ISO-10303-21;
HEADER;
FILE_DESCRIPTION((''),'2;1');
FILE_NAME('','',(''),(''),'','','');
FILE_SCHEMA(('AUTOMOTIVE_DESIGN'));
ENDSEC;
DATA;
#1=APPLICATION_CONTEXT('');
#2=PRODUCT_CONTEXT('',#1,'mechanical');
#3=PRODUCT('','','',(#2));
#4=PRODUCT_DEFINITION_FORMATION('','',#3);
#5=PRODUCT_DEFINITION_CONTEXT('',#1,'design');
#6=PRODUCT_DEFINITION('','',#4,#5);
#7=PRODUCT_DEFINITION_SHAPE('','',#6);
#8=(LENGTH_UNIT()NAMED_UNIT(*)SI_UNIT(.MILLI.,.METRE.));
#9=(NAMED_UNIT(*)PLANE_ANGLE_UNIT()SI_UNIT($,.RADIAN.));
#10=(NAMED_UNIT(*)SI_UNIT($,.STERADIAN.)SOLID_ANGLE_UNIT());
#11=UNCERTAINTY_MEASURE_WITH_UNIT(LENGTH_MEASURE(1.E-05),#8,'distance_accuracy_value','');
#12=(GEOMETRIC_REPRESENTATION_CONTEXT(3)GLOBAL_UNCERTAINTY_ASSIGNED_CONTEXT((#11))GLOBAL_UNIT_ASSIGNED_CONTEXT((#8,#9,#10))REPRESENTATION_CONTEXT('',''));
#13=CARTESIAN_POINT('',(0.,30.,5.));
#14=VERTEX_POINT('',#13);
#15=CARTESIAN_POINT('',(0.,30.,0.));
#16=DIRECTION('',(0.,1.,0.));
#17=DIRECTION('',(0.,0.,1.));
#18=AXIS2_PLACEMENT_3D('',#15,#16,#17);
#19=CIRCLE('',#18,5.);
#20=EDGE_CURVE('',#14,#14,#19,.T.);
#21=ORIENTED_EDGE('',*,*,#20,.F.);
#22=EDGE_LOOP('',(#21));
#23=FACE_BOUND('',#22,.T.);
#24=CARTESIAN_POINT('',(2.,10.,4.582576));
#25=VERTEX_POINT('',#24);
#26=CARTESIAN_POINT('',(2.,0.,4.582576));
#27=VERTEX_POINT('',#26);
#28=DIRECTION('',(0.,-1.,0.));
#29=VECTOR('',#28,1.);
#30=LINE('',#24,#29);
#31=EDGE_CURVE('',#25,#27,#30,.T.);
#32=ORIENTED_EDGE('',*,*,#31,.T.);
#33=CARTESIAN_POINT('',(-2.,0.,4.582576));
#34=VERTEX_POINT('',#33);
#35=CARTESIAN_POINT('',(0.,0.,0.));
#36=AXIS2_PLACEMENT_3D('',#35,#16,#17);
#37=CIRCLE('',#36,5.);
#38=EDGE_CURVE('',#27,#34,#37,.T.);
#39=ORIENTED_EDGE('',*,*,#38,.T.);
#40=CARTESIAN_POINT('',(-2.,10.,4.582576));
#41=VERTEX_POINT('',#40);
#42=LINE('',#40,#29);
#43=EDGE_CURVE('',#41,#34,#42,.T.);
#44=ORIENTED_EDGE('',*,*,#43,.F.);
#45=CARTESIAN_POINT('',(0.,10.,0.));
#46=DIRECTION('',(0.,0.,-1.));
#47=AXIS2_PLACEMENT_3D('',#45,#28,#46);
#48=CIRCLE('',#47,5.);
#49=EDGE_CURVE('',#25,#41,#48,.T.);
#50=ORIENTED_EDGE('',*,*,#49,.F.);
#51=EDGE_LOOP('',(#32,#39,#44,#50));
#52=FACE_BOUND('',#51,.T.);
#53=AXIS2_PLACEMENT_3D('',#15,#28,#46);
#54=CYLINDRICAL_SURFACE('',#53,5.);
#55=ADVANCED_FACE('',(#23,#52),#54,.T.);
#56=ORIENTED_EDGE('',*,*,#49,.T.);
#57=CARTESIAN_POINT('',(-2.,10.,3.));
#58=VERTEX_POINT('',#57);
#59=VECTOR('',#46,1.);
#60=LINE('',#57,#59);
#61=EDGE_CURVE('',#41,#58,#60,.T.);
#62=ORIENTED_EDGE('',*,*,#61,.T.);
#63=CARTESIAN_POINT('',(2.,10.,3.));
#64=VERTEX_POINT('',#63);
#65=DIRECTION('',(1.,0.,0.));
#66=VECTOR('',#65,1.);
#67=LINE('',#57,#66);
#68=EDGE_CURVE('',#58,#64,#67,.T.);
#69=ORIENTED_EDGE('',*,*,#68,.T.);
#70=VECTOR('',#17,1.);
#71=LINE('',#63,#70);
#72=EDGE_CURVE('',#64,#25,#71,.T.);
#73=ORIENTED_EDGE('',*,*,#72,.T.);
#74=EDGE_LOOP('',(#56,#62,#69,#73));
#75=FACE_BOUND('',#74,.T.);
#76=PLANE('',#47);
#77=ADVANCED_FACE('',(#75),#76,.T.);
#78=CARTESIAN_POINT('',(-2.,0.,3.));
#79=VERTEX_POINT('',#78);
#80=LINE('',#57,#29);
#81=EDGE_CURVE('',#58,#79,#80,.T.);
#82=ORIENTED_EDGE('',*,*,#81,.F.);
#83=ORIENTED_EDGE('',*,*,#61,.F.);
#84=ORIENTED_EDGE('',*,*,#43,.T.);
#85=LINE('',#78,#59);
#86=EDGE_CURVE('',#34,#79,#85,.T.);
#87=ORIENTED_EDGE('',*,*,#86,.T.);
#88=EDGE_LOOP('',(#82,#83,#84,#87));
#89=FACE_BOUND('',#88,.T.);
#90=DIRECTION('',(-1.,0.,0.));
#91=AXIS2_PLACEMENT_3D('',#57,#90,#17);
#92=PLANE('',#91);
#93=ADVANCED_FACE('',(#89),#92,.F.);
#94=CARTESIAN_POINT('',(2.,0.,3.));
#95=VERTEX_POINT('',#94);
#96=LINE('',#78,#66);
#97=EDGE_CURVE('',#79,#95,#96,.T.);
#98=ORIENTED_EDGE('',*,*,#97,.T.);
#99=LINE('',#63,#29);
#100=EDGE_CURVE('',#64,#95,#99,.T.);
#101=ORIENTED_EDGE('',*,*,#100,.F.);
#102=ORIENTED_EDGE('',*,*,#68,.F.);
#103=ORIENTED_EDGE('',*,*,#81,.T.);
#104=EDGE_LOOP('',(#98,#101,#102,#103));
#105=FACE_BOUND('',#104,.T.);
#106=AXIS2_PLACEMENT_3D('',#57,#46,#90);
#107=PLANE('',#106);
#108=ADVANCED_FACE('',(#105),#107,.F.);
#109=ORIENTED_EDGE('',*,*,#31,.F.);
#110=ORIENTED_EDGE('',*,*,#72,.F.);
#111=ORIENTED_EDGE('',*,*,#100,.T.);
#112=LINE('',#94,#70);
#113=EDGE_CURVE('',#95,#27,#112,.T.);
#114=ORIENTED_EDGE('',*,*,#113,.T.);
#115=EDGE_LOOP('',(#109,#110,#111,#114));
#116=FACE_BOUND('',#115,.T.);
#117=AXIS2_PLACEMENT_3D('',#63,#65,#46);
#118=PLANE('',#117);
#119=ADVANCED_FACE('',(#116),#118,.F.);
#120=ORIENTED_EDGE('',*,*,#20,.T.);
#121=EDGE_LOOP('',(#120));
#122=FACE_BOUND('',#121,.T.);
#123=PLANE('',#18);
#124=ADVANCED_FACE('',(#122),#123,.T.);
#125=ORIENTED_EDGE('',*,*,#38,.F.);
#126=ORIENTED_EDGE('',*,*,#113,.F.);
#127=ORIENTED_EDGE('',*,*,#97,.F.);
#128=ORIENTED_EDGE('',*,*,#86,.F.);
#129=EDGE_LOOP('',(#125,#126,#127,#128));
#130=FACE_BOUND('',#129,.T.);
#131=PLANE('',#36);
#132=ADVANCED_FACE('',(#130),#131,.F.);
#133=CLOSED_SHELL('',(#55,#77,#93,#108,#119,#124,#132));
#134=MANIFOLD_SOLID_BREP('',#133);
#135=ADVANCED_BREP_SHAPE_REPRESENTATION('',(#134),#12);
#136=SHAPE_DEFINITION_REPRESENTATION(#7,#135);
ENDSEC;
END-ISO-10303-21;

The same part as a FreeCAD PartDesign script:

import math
import FreeCAD as App
import Part
import Sketcher

V = App.Vector
Q = App.Units.Quantity

doc = App.newDocument("Part")
body = doc.addObject("PartDesign::Body", "Body")

sketch1 = body.newObject("Sketcher::SketchObject", "Sketch")
sketch1.AttachmentSupport = (doc.getObject("XZ_Plane"), [""])
sketch1.MapMode = "FlatFace"
sketch1.addGeometry(Part.Circle(V(0, 0, 0), V(0, 0, 1), 5), False)
sketch1.addConstraint([
    Sketcher.Constraint("Coincident", 0, 3, -1, 1),
    Sketcher.Constraint("Diameter", 0, Q("10 mm")),
])
pad1 = body.newObject("PartDesign::Pad", "Pad")
pad1.Profile = sketch1
pad1.Length = 30
pad1.Reversed = True

sketch2 = body.newObject("Sketcher::SketchObject", "Sketch001")
sketch2.AttachmentSupport = (doc.getObject("XZ_Plane"), [""])
sketch2.MapMode = "FlatFace"
sketch2.addGeometry([
    Part.LineSegment(V(-2, 3, 0), V(2, 3, 0)),
    Part.LineSegment(V(2, 3, 0), V(2, 4.6, 0)),
    Part.ArcOfCircle(Part.Circle(V(0, 0, 0), V(0, 0, 1), 5), math.radians(66), math.radians(114)),
    Part.LineSegment(V(-2, 4.6, 0), V(-2, 3, 0)),
], False)
sketch2.addConstraint([
    Sketcher.Constraint("Coincident", 0, 2, 1, 1),
    Sketcher.Constraint("Coincident", 1, 2, 2, 1),
    Sketcher.Constraint("Coincident", 2, 2, 3, 1),
    Sketcher.Constraint("Coincident", 3, 2, 0, 1),
    Sketcher.Constraint("Horizontal", 0),
    Sketcher.Constraint("Vertical", 1),
    Sketcher.Constraint("Vertical", 3),
    Sketcher.Constraint("Coincident", 2, 3, -1, 1),
    Sketcher.Constraint("Horizontal", 1, 2, 2, 2),
    Sketcher.Constraint("Radius", 2, Q("5 mm")),
    Sketcher.Constraint("DistanceX", 0, 1, 0, 2, Q("4 mm")),
    Sketcher.Constraint("DistanceY", -1, 1, 0, 2, Q("3 mm")),
])
pocket1 = body.newObject("PartDesign::Pocket", "Pocket")
pocket1.Profile = sketch2
pocket1.Length = 10

doc.recompute()
